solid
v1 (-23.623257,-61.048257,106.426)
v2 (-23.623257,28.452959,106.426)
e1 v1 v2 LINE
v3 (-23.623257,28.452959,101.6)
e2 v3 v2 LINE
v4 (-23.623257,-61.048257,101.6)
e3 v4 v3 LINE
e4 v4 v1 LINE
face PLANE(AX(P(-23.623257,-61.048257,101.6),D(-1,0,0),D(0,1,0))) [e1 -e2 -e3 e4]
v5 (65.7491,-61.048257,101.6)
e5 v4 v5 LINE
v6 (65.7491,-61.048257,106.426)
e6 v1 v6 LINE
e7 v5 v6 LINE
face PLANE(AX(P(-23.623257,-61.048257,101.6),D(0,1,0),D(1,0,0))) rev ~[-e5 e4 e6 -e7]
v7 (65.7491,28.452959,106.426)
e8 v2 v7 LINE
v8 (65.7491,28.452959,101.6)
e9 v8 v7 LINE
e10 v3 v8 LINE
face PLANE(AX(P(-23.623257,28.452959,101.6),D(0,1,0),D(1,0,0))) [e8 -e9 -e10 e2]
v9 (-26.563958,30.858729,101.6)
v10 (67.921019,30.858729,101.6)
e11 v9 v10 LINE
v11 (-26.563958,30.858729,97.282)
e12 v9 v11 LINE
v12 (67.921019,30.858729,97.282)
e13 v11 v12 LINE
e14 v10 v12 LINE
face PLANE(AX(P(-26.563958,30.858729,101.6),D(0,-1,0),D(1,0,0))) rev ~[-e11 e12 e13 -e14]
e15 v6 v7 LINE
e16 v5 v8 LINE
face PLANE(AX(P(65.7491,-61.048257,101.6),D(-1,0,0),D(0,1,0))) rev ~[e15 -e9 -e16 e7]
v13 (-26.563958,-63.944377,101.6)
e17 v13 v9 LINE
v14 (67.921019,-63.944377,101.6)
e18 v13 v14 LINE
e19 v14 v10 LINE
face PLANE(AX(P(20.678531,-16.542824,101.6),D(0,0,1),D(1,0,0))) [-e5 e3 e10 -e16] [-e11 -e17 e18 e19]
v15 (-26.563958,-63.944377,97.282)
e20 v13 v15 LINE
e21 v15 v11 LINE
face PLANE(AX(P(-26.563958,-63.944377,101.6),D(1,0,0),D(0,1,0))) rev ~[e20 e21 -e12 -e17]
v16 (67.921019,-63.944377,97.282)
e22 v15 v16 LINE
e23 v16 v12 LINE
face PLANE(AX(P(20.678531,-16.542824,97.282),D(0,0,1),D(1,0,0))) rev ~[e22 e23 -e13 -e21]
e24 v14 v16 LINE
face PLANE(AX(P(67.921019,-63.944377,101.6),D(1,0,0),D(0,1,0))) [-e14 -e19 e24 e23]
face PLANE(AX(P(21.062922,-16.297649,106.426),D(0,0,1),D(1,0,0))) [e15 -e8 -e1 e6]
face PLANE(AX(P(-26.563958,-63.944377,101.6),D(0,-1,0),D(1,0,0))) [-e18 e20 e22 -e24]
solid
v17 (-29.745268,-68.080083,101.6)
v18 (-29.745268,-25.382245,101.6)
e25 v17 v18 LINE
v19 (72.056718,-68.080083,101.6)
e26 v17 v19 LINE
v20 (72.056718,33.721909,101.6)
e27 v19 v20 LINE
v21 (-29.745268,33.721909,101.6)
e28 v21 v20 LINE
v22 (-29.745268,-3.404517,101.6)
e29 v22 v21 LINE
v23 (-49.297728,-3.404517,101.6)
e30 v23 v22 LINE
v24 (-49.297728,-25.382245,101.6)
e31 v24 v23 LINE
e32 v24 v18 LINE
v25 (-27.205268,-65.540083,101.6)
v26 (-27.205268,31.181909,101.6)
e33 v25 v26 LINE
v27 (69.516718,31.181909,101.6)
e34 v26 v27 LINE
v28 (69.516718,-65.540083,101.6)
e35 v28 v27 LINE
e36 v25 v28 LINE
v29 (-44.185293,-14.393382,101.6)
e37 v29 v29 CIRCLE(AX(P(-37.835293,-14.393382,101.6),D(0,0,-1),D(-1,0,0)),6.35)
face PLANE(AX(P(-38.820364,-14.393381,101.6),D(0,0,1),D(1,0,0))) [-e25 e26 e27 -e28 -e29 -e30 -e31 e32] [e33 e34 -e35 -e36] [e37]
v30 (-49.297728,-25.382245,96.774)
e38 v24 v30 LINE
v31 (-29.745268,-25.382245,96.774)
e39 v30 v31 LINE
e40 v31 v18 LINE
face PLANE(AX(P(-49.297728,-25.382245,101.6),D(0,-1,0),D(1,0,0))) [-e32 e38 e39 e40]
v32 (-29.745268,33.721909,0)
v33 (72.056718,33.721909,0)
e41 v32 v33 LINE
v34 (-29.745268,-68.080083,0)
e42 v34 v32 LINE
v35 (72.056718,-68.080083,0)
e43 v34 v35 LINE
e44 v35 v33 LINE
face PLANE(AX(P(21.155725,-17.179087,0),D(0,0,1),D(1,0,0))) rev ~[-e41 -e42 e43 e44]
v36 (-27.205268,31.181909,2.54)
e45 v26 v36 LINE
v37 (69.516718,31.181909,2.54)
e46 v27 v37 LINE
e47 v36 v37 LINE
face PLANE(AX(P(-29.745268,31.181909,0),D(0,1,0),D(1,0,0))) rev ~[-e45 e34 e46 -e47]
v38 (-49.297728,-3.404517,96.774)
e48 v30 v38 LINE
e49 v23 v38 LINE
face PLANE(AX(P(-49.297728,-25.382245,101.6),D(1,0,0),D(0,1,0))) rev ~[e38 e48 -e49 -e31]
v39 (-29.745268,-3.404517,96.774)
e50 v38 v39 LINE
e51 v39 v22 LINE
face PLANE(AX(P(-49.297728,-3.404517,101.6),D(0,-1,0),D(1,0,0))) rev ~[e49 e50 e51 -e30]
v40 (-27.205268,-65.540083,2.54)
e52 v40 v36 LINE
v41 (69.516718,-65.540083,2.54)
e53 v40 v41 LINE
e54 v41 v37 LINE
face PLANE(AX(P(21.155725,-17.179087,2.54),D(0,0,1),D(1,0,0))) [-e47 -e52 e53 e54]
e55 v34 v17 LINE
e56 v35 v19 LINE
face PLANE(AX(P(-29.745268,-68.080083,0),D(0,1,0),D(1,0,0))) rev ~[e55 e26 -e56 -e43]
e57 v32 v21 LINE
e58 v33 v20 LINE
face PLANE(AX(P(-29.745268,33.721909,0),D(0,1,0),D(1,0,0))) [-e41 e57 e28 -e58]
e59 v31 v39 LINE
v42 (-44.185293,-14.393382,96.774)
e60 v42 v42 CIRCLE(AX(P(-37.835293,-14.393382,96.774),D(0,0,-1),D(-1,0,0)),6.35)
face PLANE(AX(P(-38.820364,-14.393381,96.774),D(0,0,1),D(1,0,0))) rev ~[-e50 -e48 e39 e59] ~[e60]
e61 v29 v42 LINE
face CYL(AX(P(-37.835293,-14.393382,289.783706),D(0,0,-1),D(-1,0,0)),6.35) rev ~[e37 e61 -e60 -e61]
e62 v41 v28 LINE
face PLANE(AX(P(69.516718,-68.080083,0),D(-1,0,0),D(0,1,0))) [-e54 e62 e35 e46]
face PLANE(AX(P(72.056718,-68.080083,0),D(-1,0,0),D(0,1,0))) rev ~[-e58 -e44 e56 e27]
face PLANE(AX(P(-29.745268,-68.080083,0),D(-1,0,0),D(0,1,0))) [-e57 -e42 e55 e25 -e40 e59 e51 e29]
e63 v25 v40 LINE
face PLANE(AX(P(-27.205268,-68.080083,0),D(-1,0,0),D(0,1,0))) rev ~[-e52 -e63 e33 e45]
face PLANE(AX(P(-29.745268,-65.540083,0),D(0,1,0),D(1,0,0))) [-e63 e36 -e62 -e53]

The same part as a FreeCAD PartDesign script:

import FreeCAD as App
import Part
import Sketcher

V = App.Vector
Q = App.Units.Quantity


def faces_at(feature, points):
    """Names of the faces that lie closest to the given points."""
    faces = feature.Shape.Faces
    near = lambda p: min(range(len(faces)), key=lambda i: faces[i].distToShape(Part.Vertex(*p))[0])
    return sorted({f"Face{near(p) + 1}" for p in points})


def add_polygon(sketch, points):
    """Adds a closed chain of lines whose ends are joined by coincident constraints."""
    first, n = sketch.GeometryCount, len(points)
    for a, b in zip(points, points[1:] + points[:1]):
        sketch.addGeometry(Part.LineSegment(App.Vector(*a, 0), App.Vector(*b, 0)), False)
    for i in range(n):
        sketch.addConstraint(Sketcher.Constraint("Coincident", first + i, 2, first + (i + 1) % n, 1))

doc = App.newDocument("Part")
body = doc.addObject("PartDesign::Body", "Body")

# Sketch on XY plane
sketch1 = body.newObject("Sketcher::SketchObject", "Sketch")
sketch1.AttachmentSupport = (doc.getObject("XY_Plane"), [""])
sketch1.MapMode = "FlatFace"
add_polygon(sketch1, [(-30, 34), (-30, -68), (72, -68), (72, 34)])  # lines 0-3
sketch1.addConstraint(Sketcher.Constraint("Vertical", 0))
sketch1.addConstraint(Sketcher.Constraint("Horizontal", 1))
sketch1.addConstraint(Sketcher.Constraint("Vertical", 2))
sketch1.addConstraint(Sketcher.Constraint("Horizontal", 3))
sketch1.addConstraint(Sketcher.Constraint("DistanceY", 0, 2, 0, 1, Q("101.801992 mm")))
sketch1.addConstraint(Sketcher.Constraint("DistanceX", 1, 1, 1, 2, Q("101.801986 mm")))
sketch1.addConstraint(Sketcher.Constraint("DistanceX", -1, 1, 1, 2, Q("72.056718 mm")))
sketch1.addConstraint(Sketcher.Constraint("DistanceY", -1, 1, 2, 2, Q("33.721909 mm")))
pad1 = body.newObject("PartDesign::Pad", "Pad")
pad1.Profile = sketch1
pad1.Length = Q("4 in")
doc.recompute()

thickness = body.newObject("PartDesign::Thickness", "Thickness")
thickness.Base = (pad1, faces_at(pad1, [(21.156, -17.179, 101.6)]))
thickness.Value = Q("0.1 in")
thickness.Reversed = True
thickness.Join = "Arc"

# Sketch on XY plane
sketch2 = body.newObject("Sketcher::SketchObject", "Sketch001")
sketch2.AttachmentSupport = (doc.getObject("XY_Plane"), [""])
sketch2.MapMode = "FlatFace"
sketch2.AttachmentOffset = App.Placement(V(0, 0, 4 * 25.4), App.Rotation())
add_polygon(sketch2, [(-49, -3), (-49, -25), (-28, -25), (-28, -3)])  # lines 0-3
sketch2.addConstraint(Sketcher.Constraint("Vertical", 0))
sketch2.addConstraint(Sketcher.Constraint("Horizontal", 1))
sketch2.addConstraint(Sketcher.Constraint("Vertical", 2))
sketch2.addConstraint(Sketcher.Constraint("Horizontal", 3))
sketch2.addConstraint(Sketcher.Constraint("DistanceY", 0, 2, 0, 1, Q("21.977729 mm")))
sketch2.addConstraint(Sketcher.Constraint("DistanceX", 1, 2, -1, 1, Q("28.343 mm")))
sketch2.addConstraint(Sketcher.Constraint("DistanceX", 1, 1, 1, 2, Q("20.954728 mm")))
sketch2.addConstraint(Sketcher.Constraint("DistanceY", 0, 2, -1, 1, Q("25.382245 mm")))
pad2 = body.newObject("PartDesign::Pad", "Pad001")
pad2.Profile = sketch2
pad2.Length = Q("0.19 in")
pad2.Reversed = True

# Sketch on XY plane
sketch3 = body.newObject("Sketcher::SketchObject", "Sketch002")
sketch3.AttachmentSupport = (doc.getObject("XY_Plane"), [""])
sketch3.MapMode = "FlatFace"
sketch3.AttachmentOffset = App.Placement(V(0, 0, 4 * 25.4), App.Rotation())
sketch3.addGeometry(Part.Circle(V(-38, -14, 0), V(0, 0, 1), 6), False)
sketch3.addConstraint(Sketcher.Constraint("Diameter", 0, Q("0.5 in")))
sketch3.addConstraint(Sketcher.Constraint("DistanceX", 0, 3, -1, 1, Q("37.835293 mm")))
sketch3.addConstraint(Sketcher.Constraint("DistanceY", 0, 3, -1, 1, Q("14.393382 mm")))
doc.recompute()
hole = body.newObject("PartDesign::Hole", "Hole")
hole.Profile = sketch3
hole.ThreadType = "None"
hole.Diameter = Q("0.5 in")
hole.DepthType = "ThroughAll"
body2 = doc.addObject("PartDesign::Body", "Body001")

# Sketch on XY plane
sketch4 = body2.newObject("Sketcher::SketchObject", "Sketch003")
sketch4.AttachmentSupport = (doc.getObject("XY_Plane001"), [""])
sketch4.MapMode = "FlatFace"
sketch4.AttachmentOffset = App.Placement(V(0, 0, 4 * 25.4), App.Rotation())
add_polygon(sketch4, [(-27, 31), (-27, -64), (68, -64), (68, 31)])  # lines 0-3
sketch4.addConstraint(Sketcher.Constraint("Vertical", 0))
sketch4.addConstraint(Sketcher.Constraint("Horizontal", 1))
sketch4.addConstraint(Sketcher.Constraint("Vertical", 2))
sketch4.addConstraint(Sketcher.Constraint("Horizontal", 3))
sketch4.addConstraint(Sketcher.Constraint("DistanceX", 1, 1, 1, 2, Q("94.484977 mm")))
sketch4.addConstraint(Sketcher.Constraint("DistanceY", 0, 2, 0, 1, Q("94.803106 mm")))
sketch4.addConstraint(Sketcher.Constraint("DistanceX", -1, 1, 1, 2, Q("67.921019 mm")))
sketch4.addConstraint(Sketcher.Constraint("DistanceY", -1, 1, 2, 2, Q("30.858729 mm")))
pad3 = body2.newObject("PartDesign::Pad", "Pad002")
pad3.Profile = sketch4
pad3.Length = Q("0.17 in")
pad3.Reversed = True

# Sketch on XY plane
sketch5 = body2.newObject("Sketcher::SketchObject", "Sketch004")
sketch5.AttachmentSupport = (doc.getObject("XY_Plane001"), [""])
sketch5.MapMode = "FlatFace"
sketch5.AttachmentOffset = App.Placement(V(0, 0, 4 * 25.4), App.Rotation())
add_polygon(sketch5, [(-24, 28), (-24, -61), (66, -61), (66, 28)])  # lines 0-3
sketch5.addConstraint(Sketcher.Constraint("Vertical", 0))
sketch5.addConstraint(Sketcher.Constraint("Horizontal", 1))
sketch5.addConstraint(Sketcher.Constraint("Vertical", 2))
sketch5.addConstraint(Sketcher.Constraint("Horizontal", 3))
sketch5.addConstraint(Sketcher.Constraint("DistanceX", -1, 1, 1, 2, Q("65.7491 mm")))
sketch5.addConstraint(Sketcher.Constraint("DistanceX", 1, 1, 1, 2, Q("89.372357 mm")))
sketch5.addConstraint(Sketcher.Constraint("DistanceY", 0, 2, 0, 1, Q("89.501217 mm")))
sketch5.addConstraint(Sketcher.Constraint("DistanceY", -1, 1, 2, 2, Q("28.452959 mm")))
pad4 = body2.newObject("PartDesign::Pad", "Pad003")
pad4.Profile = sketch5
pad4.Length = Q("0.19 in")

doc.recompute()
